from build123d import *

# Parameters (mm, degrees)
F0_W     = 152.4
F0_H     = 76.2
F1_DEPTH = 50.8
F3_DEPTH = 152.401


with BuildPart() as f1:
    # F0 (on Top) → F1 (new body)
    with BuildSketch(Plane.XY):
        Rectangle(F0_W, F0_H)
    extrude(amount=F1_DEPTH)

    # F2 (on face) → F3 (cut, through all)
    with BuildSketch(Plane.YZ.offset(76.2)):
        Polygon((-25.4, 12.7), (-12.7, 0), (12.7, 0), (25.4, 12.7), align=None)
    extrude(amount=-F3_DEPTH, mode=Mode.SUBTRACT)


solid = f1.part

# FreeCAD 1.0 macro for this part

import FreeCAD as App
import Part
import Sketcher
from FreeCAD import Vector
Q = App.Units.Quantity

doc = App.newDocument("Part")
body = doc.addObject("PartDesign::Body", "Body")

# Sketch on XY plane
sketch1 = doc.addObject("Sketcher::SketchObject", "Sketch")
body.addObject(sketch1)
sketch1.AttachmentSupport = (doc.XY_Plane, [""])
sketch1.MapMode = "FlatFace"
sketch1.addGeometry(Part.LineSegment(Vector(-76, 38, 0), Vector(-76, -38, 0)), False)
sketch1.addGeometry(Part.LineSegment(Vector(-76, -38, 0), Vector(76, -38, 0)), False)
sketch1.addGeometry(Part.LineSegment(Vector(76, -38, 0), Vector(76, 38, 0)), False)
sketch1.addGeometry(Part.LineSegment(Vector(76, 38, 0), Vector(-76, 38, 0)), False)
sketch1.addConstraint(Sketcher.Constraint("Coincident", 0, 2, 1, 1))
sketch1.addConstraint(Sketcher.Constraint("Coincident", 1, 2, 2, 1))
sketch1.addConstraint(Sketcher.Constraint("Coincident", 2, 2, 3, 1))
sketch1.addConstraint(Sketcher.Constraint("Coincident", 3, 2, 0, 1))
sketch1.addConstraint(Sketcher.Constraint("Vertical", 0))
sketch1.addConstraint(Sketcher.Constraint("Horizontal", 1))
sketch1.addConstraint(Sketcher.Constraint("Vertical", 2))
sketch1.addConstraint(Sketcher.Constraint("Horizontal", 3))
sketch1.addConstraint(Sketcher.Constraint("Symmetric", 0, 2, 2, 2, -1, 1))
sketch1.addConstraint(Sketcher.Constraint("DistanceX", 1, 1, 1, 2, Q("6 in")))
sketch1.addConstraint(Sketcher.Constraint("DistanceY", 0, 2, 0, 1, Q("3 in")))
pad1 = doc.addObject("PartDesign::Pad", "Pad")
body.addObject(pad1)
pad1.Profile = sketch1
pad1.Length = Q("2 in")

# Sketch on YZ plane
sketch2 = doc.addObject("Sketcher::SketchObject", "Sketch001")
body.addObject(sketch2)
sketch2.AttachmentSupport = (doc.YZ_Plane, [""])
sketch2.MapMode = "FlatFace"
sketch2.AttachmentOffset = App.Placement(Vector(0, 0, 3 * 25.4), App.Rotation())
sketch2.addGeometry(Part.LineSegment(Vector(-25, 13, 0), Vector(-13, 0, 0)), False)
sketch2.addGeometry(Part.LineSegment(Vector(-13, 0, 0), Vector(13, 0, 0)), False)
sketch2.addGeometry(Part.LineSegment(Vector(13, 0, 0), Vector(25, 13, 0)), False)
sketch2.addGeometry(Part.LineSegment(Vector(25, 13, 0), Vector(-25, 13, 0)), False)
sketch2.addConstraint(Sketcher.Constraint("Coincident", 0, 2, 1, 1))
sketch2.addConstraint(Sketcher.Constraint("Coincident", 1, 2, 2, 1))
sketch2.addConstraint(Sketcher.Constraint("Coincident", 2, 2, 3, 1))
sketch2.addConstraint(Sketcher.Constraint("Coincident", 3, 2, 0, 1))
sketch2.addConstraint(Sketcher.Constraint("Horizontal", 1))
sketch2.addConstraint(Sketcher.Constraint("Horizontal", 3))
sketch2.addConstraint(Sketcher.Constraint("Symmetric", 0, 2, 1, 2, -1, 1))
sketch2.addConstraint(Sketcher.Constraint("Perpendicular", 0, 2))
sketch2.addConstraint(Sketcher.Constraint("Equal", 0, 2))
sketch2.addConstraint(Sketcher.Constraint("DistanceX", 1, 1, 1, 2, Q("1 in")))
sketch2.addConstraint(Sketcher.Constraint("DistanceX", 3, 2, 3, 1, Q("2 in")))
pocket1 = doc.addObject("PartDesign::Pocket", "Pocket")
body.addObject(pocket1)
pocket1.Profile = sketch2
pocket1.Type = "ThroughAll"

doc.recompute()
